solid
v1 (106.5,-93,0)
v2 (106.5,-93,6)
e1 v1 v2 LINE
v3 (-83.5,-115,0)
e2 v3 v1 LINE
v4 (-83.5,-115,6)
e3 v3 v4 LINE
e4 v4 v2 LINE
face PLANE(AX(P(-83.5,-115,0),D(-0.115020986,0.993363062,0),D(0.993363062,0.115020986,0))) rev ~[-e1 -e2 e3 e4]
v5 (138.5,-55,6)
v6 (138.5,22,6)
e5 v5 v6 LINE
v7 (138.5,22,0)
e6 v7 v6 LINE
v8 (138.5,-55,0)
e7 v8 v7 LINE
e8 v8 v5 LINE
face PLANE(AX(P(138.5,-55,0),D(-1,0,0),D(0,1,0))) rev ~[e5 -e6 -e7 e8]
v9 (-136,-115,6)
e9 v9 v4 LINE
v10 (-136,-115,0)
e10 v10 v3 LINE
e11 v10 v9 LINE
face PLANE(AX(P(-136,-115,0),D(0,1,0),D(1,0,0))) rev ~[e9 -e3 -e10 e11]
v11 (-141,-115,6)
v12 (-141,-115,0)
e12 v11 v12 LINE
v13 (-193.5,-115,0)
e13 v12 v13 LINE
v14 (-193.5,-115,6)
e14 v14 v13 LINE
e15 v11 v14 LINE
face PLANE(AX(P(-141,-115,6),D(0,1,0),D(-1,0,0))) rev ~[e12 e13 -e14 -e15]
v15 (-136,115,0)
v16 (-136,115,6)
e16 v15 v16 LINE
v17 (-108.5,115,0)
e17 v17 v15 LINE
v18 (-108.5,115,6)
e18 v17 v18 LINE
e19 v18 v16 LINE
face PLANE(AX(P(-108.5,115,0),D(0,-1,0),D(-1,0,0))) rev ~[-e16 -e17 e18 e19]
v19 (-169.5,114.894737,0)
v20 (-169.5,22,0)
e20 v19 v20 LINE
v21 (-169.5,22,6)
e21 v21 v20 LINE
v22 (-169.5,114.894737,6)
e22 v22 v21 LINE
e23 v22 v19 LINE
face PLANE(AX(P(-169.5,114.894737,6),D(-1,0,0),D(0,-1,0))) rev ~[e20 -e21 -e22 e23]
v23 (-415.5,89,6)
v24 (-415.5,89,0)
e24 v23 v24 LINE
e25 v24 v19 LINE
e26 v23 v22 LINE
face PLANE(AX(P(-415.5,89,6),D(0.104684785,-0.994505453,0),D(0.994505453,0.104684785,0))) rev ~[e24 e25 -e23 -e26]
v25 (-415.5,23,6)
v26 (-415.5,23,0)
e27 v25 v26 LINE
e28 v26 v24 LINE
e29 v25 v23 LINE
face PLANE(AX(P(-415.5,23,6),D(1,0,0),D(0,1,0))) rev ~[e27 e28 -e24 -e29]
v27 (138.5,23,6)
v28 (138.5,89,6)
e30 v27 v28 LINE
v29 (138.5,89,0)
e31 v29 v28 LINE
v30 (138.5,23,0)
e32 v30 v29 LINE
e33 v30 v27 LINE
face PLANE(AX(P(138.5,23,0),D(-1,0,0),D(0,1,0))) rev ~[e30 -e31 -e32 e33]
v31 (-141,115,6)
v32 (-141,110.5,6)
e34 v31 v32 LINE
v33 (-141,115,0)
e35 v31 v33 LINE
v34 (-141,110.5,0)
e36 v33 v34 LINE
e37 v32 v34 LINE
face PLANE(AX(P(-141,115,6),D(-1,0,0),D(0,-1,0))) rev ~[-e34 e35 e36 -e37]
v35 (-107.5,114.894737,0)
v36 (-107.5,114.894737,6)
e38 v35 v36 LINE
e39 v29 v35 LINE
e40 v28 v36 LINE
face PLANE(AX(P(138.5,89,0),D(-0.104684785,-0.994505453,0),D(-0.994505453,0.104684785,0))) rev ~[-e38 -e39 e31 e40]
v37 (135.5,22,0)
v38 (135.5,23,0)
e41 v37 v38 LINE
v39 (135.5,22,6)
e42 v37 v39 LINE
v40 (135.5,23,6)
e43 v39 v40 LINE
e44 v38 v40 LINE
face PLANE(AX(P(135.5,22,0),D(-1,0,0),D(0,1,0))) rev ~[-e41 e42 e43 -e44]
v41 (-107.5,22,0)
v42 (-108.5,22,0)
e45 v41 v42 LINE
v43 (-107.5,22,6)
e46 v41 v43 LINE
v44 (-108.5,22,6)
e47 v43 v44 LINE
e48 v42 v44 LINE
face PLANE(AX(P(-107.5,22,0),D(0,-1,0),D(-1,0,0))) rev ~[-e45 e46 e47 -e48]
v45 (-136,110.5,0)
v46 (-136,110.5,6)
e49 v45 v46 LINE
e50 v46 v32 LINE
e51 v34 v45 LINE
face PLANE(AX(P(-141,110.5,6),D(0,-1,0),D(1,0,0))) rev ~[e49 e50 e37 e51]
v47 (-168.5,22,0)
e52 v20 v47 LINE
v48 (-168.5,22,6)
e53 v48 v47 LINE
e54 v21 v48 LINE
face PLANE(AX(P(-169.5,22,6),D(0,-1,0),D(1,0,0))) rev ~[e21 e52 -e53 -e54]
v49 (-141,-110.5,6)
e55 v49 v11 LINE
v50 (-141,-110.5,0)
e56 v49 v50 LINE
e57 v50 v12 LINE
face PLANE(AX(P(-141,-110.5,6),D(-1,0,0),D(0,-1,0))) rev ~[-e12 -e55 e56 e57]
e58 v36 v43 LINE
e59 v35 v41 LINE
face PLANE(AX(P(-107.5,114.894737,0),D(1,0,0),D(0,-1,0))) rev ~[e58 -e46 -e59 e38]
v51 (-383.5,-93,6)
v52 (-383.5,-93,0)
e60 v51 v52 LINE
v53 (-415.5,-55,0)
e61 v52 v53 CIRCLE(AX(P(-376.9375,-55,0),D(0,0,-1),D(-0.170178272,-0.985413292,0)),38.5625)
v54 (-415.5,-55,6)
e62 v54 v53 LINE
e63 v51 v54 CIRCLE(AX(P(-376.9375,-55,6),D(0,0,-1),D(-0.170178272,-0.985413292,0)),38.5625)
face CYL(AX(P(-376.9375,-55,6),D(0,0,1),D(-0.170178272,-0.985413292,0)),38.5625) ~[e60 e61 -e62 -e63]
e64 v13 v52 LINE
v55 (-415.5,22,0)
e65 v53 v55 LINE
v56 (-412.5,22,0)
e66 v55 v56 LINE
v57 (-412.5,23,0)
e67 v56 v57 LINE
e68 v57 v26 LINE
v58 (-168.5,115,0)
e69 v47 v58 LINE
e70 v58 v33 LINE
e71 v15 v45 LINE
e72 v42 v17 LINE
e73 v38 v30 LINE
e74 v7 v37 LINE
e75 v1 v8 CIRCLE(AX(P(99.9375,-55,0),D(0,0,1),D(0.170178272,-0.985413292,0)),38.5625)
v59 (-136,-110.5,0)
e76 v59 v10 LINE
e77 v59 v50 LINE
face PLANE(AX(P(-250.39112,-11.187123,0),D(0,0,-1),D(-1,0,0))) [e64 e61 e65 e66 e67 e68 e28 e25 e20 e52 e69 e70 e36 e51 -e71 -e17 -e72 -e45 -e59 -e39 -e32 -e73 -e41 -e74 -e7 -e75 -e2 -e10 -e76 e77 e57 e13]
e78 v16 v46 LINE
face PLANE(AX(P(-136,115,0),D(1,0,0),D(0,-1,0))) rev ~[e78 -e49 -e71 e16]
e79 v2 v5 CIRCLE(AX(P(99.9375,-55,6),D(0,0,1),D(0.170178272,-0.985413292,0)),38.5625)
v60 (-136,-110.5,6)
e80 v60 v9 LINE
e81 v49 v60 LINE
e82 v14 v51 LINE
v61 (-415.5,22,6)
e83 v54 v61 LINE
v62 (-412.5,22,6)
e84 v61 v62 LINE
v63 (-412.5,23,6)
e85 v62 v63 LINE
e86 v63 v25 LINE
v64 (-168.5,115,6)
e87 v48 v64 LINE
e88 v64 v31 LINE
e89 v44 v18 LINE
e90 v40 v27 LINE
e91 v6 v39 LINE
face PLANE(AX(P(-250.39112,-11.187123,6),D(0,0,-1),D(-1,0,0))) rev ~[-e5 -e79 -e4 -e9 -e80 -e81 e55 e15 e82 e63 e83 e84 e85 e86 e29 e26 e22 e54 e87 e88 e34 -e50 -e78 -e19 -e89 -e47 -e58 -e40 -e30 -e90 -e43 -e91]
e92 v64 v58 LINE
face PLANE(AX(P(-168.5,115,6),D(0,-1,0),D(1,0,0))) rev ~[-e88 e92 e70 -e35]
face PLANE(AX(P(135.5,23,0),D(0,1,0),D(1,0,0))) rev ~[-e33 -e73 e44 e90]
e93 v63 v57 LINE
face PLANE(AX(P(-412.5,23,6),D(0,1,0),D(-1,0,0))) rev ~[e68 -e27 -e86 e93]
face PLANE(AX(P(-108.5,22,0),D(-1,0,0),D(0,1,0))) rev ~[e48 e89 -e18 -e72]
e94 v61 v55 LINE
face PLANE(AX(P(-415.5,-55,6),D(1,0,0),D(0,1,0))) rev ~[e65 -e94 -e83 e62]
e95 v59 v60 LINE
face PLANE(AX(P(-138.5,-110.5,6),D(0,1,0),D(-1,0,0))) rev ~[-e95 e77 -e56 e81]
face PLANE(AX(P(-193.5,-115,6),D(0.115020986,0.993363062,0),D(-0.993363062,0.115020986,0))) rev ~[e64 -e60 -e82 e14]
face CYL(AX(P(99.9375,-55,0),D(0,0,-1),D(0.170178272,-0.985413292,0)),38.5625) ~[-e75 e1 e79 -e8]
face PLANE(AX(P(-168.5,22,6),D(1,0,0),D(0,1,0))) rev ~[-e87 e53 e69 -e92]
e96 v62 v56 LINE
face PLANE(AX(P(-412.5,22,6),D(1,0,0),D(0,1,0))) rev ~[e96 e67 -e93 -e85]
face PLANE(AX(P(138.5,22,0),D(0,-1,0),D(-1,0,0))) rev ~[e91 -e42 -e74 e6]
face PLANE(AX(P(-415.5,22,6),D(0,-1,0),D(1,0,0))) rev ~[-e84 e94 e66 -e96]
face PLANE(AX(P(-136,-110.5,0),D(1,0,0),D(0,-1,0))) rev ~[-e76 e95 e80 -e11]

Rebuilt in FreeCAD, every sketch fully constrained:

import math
import FreeCAD as App
import Part
import Sketcher
from FreeCAD import Vector

doc = App.newDocument("Part")
body = doc.addObject("PartDesign::Body", "Body")

# Sketch on XY plane
sketch1 = doc.addObject("Sketcher::SketchObject", "Sketch")
body.addObject(sketch1)
sketch1.AttachmentSupport = (doc.XY_Plane, [""])
sketch1.MapMode = "FlatFace"
sketch1.addGeometry([
    Part.LineSegment(Vector(-108.5, 115, 0), Vector(-136, 115, 0)),  # 0
    Part.LineSegment(Vector(-136, 115, 0), Vector(-136, 110.5, 0)),  # 1
    Part.LineSegment(Vector(-136, 110.5, 0), Vector(-138.5, 110.5, 0)),  # 2
    Part.LineSegment(Vector(-138.5, 110.5, 0), Vector(-138.5, -110.5, 0)),  # 3
    Part.LineSegment(Vector(-138.5, -110.5, 0), Vector(-136, -110.5, 0)),  # 4
    Part.LineSegment(Vector(-136, -110.5, 0), Vector(-136, -115, 0)),  # 5
    Part.LineSegment(Vector(-136, -115, 0), Vector(-83.5, -115, 0)),  # 6
    Part.LineSegment(Vector(-83.5, -115, 0), Vector(106.5, -93, 0)),  # 7
    Part.ArcOfCircle(Part.Circle(Vector(99.9, -55, 0), Vector(0, 0, 1), 38.6), math.radians(-80), math.radians(0)),  # 8
    Part.LineSegment(Vector(138.5, -55, 0), Vector(138.5, 22, 0)),  # 9
    Part.LineSegment(Vector(138.5, 22, 0), Vector(135.5, 22, 0)),  # 10
    Part.LineSegment(Vector(135.5, 22, 0), Vector(135.5, 23, 0)),  # 11
    Part.LineSegment(Vector(135.5, 23, 0), Vector(138.5, 23, 0)),  # 12
    Part.LineSegment(Vector(138.5, 23, 0), Vector(138.5, 89, 0)),  # 13
    Part.LineSegment(Vector(138.5, 89, 0), Vector(-107.5, 114.9, 0)),  # 14
    Part.LineSegment(Vector(-107.5, 114.9, 0), Vector(-107.5, 22, 0)),  # 15
    Part.LineSegment(Vector(-107.5, 22, 0), Vector(-108.5, 22, 0)),  # 16
    Part.LineSegment(Vector(-108.5, 22, 0), Vector(-108.5, 115, 0)),  # 17
], False)
sketch1.addConstraint([
    Sketcher.Constraint("Coincident", 0, 2, 1, 1),
    Sketcher.Constraint("Coincident", 1, 2, 2, 1),
    Sketcher.Constraint("Coincident", 2, 2, 3, 1),
    Sketcher.Constraint("Coincident", 3, 2, 4, 1),
    Sketcher.Constraint("Coincident", 4, 2, 5, 1),
    Sketcher.Constraint("Coincident", 5, 2, 6, 1),
    Sketcher.Constraint("Coincident", 6, 2, 7, 1),
    Sketcher.Constraint("Coincident", 7, 2, 8, 1),
    Sketcher.Constraint("Tangent", 8, 2, 9, 1),
    Sketcher.Constraint("Coincident", 9, 2, 10, 1),
    Sketcher.Constraint("Coincident", 10, 2, 11, 1),
    Sketcher.Constraint("Coincident", 11, 2, 12, 1),
    Sketcher.Constraint("Coincident", 12, 2, 13, 1),
    Sketcher.Constraint("Coincident", 13, 2, 14, 1),
    Sketcher.Constraint("Coincident", 14, 2, 15, 1),
    Sketcher.Constraint("Coincident", 15, 2, 16, 1),
    Sketcher.Constraint("Coincident", 16, 2, 17, 1),
    Sketcher.Constraint("Coincident", 17, 2, 0, 1),
    Sketcher.Constraint("Horizontal", 0),
    Sketcher.Constraint("Vertical", 1),
    Sketcher.Constraint("Horizontal", 2),
    Sketcher.Constraint("Vertical", 3),
    Sketcher.Constraint("Horizontal", 4),
    Sketcher.Constraint("Vertical", 5),
    Sketcher.Constraint("Horizontal", 6),
    Sketcher.Constraint("Vertical", 9),
    Sketcher.Constraint("Horizontal", 10),
    Sketcher.Constraint("Vertical", 11),
    Sketcher.Constraint("Horizontal", 12),
    Sketcher.Constraint("Vertical", 13),
    Sketcher.Constraint("Vertical", 15),
    Sketcher.Constraint("Horizontal", 16),
    Sketcher.Constraint("Vertical", 17),
    Sketcher.Constraint("Symmetric", 1, 2, 4, 2, -1),
    Sketcher.Constraint("Horizontal", 10, 2, 15, 2),
    Sketcher.Constraint("Vertical", 9, 2, 12, 2),
    Sketcher.Constraint("Equal", 1, 5),
    Sketcher.Constraint("Equal", 16, 11),
    Sketcher.Constraint("DistanceX", 10, 2, 10, 1, 3.0),
    Sketcher.Constraint("DistanceX", 16, 2, 16, 1, 1.0),
    Sketcher.Constraint("DistanceY", 3, 2, 3, 1, 221.0),
    Sketcher.Constraint("DistanceY", 9, 1, 9, 2, 77.0),
    Sketcher.Constraint("DistanceY", 13, 1, 13, 2, 66.0),
    Sketcher.Constraint("DistanceY", 17, 1, 17, 2, 93.0),
    Sketcher.Constraint("DistanceX", 0, 2, 0, 1, 27.5),
    Sketcher.Constraint("DistanceX", 2, 2, 2, 1, 2.5),
    Sketcher.Constraint("DistanceX", 6, 1, 6, 2, 52.5),
    Sketcher.Constraint("DistanceY", 1, 2, 1, 1, 4.5),
    Sketcher.Constraint("DistanceX", 0, 2, -1, 1, 136.0),
    Sketcher.Constraint("DistanceY", 7, 2, -1, 1, 93.0),
    Sketcher.Constraint("DistanceX", 6, 2, 7, 2, 190.0),
    Sketcher.Constraint("DistanceX", 7, 2, 8, 2, 32.0),
    Sketcher.Constraint("DistanceY", 15, 2, 15, 1, 92.894737),
])
pad1 = doc.addObject("PartDesign::Pad", "Pad")
body.addObject(pad1)
pad1.Profile = sketch1
pad1.Length = 6
body2 = doc.addObject("PartDesign::Body", "Body001")
doc.recompute()

body2.BaseFeature = body
doc.recompute()

body.Placement = App.Placement(Vector(-277, 0, 6), App.Rotation(Vector(0, 1, 0), 180))
boolean = doc.addObject("PartDesign::Boolean", "Boolean")
body2.addObject(boolean)
boolean.Type = "Fuse"
boolean.addObjects([body])

doc.recompute()
